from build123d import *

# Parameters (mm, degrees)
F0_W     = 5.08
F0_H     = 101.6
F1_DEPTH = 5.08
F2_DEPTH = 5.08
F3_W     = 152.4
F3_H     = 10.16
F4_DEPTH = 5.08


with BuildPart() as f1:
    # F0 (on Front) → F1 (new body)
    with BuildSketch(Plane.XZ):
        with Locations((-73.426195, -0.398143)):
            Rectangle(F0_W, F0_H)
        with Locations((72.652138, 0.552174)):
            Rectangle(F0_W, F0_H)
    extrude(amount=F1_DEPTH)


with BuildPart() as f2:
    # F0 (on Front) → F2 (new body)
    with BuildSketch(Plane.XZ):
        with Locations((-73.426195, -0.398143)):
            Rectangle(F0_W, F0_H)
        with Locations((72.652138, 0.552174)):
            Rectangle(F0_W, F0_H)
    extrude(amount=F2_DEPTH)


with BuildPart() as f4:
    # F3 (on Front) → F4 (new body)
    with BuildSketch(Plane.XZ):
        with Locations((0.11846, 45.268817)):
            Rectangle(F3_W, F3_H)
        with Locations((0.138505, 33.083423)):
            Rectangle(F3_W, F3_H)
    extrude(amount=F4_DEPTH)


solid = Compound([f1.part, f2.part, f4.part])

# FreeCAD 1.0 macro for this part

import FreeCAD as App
import Part
import Sketcher

V = App.Vector
Q = App.Units.Quantity

doc = App.newDocument("Part")
body = doc.addObject("PartDesign::Body", "Body")
body.AllowCompound = True

# Sketch on XZ plane
sketch1 = doc.addObject("Sketcher::SketchObject", "Sketch")
body.addObject(sketch1)
sketch1.AttachmentSupport = (doc.XZ_Plane, [""])
sketch1.MapMode = "FlatFace"
sketch1.addGeometry(Part.LineSegment(V(-76, 50, 0), V(-76, -51, 0)), False)
sketch1.addGeometry(Part.LineSegment(V(-76, -51, 0), V(-71, -51, 0)), False)
sketch1.addGeometry(Part.LineSegment(V(-71, -51, 0), V(-71, 50, 0)), False)
sketch1.addGeometry(Part.LineSegment(V(-71, 50, 0), V(-76, 50, 0)), False)
sketch1.addGeometry(Part.LineSegment(V(70, 51, 0), V(70, -50, 0)), False)
sketch1.addGeometry(Part.LineSegment(V(70, -50, 0), V(75, -50, 0)), False)
sketch1.addGeometry(Part.LineSegment(V(75, -50, 0), V(75, 51, 0)), False)
sketch1.addGeometry(Part.LineSegment(V(75, 51, 0), V(70, 51, 0)), False)
sketch1.addConstraint(Sketcher.Constraint("Coincident", 0, 2, 1, 1))
sketch1.addConstraint(Sketcher.Constraint("Coincident", 1, 2, 2, 1))
sketch1.addConstraint(Sketcher.Constraint("Coincident", 2, 2, 3, 1))
sketch1.addConstraint(Sketcher.Constraint("Coincident", 3, 2, 0, 1))
sketch1.addConstraint(Sketcher.Constraint("Coincident", 4, 2, 5, 1))
sketch1.addConstraint(Sketcher.Constraint("Coincident", 5, 2, 6, 1))
sketch1.addConstraint(Sketcher.Constraint("Coincident", 6, 2, 7, 1))
sketch1.addConstraint(Sketcher.Constraint("Coincident", 7, 2, 4, 1))
sketch1.addConstraint(Sketcher.Constraint("Vertical", 0))
sketch1.addConstraint(Sketcher.Constraint("Horizontal", 1))
sketch1.addConstraint(Sketcher.Constraint("Vertical", 2))
sketch1.addConstraint(Sketcher.Constraint("Horizontal", 3))
sketch1.addConstraint(Sketcher.Constraint("Vertical", 4))
sketch1.addConstraint(Sketcher.Constraint("Horizontal", 5))
sketch1.addConstraint(Sketcher.Constraint("Vertical", 6))
sketch1.addConstraint(Sketcher.Constraint("Horizontal", 7))
sketch1.addConstraint(Sketcher.Constraint("Equal", 3, 5))
sketch1.addConstraint(Sketcher.Constraint("Equal", 2, 4))
sketch1.addConstraint(Sketcher.Constraint("DistanceY", 0, 2, 0, 1, Q("4 in")))
sketch1.addConstraint(Sketcher.Constraint("DistanceX", 1, 1, 1, 2, Q("0.2 in")))
sketch1.addConstraint(Sketcher.Constraint("DistanceX", -1, 1, 4, 2, Q("70.112138 mm")))
sketch1.addConstraint(Sketcher.Constraint("DistanceX", 0, 2, -1, 1, Q("75.966195 mm")))
sketch1.addConstraint(Sketcher.Constraint("DistanceY", 0, 2, -1, 1, Q("51.198143 mm")))
sketch1.addConstraint(Sketcher.Constraint("DistanceY", 4, 2, -1, 1, Q("50.247826 mm")))
pad1 = doc.addObject("PartDesign::Pad", "Pad")
body.addObject(pad1)
pad1.Profile = sketch1
pad1.Length = Q("0.2 in")
body2 = doc.addObject("PartDesign::Body", "Body001")
body2.AllowCompound = True

# Sketch on XZ plane
sketch2 = doc.addObject("Sketcher::SketchObject", "Sketch001")
body2.addObject(sketch2)
sketch2.AttachmentSupport = (doc.getObject("XZ_Plane001"), [""])
sketch2.MapMode = "FlatFace"
sketch2.addGeometry(Part.LineSegment(V(-76, 50, 0), V(-76, -51, 0)), False)
sketch2.addGeometry(Part.LineSegment(V(-76, -51, 0), V(-71, -51, 0)), False)
sketch2.addGeometry(Part.LineSegment(V(-71, -51, 0), V(-71, 50, 0)), False)
sketch2.addGeometry(Part.LineSegment(V(-71, 50, 0), V(-76, 50, 0)), False)
sketch2.addGeometry(Part.LineSegment(V(70, 51, 0), V(70, -50, 0)), False)
sketch2.addGeometry(Part.LineSegment(V(70, -50, 0), V(75, -50, 0)), False)
sketch2.addGeometry(Part.LineSegment(V(75, -50, 0), V(75, 51, 0)), False)
sketch2.addGeometry(Part.LineSegment(V(75, 51, 0), V(70, 51, 0)), False)
sketch2.addConstraint(Sketcher.Constraint("Coincident", 0, 2, 1, 1))
sketch2.addConstraint(Sketcher.Constraint("Coincident", 1, 2, 2, 1))
sketch2.addConstraint(Sketcher.Constraint("Coincident", 2, 2, 3, 1))
sketch2.addConstraint(Sketcher.Constraint("Coincident", 3, 2, 0, 1))
sketch2.addConstraint(Sketcher.Constraint("Coincident", 4, 2, 5, 1))
sketch2.addConstraint(Sketcher.Constraint("Coincident", 5, 2, 6, 1))
sketch2.addConstraint(Sketcher.Constraint("Coincident", 6, 2, 7, 1))
sketch2.addConstraint(Sketcher.Constraint("Coincident", 7, 2, 4, 1))
sketch2.addConstraint(Sketcher.Constraint("Vertical", 0))
sketch2.addConstraint(Sketcher.Constraint("Horizontal", 1))
sketch2.addConstraint(Sketcher.Constraint("Vertical", 2))
sketch2.addConstraint(Sketcher.Constraint("Horizontal", 3))
sketch2.addConstraint(Sketcher.Constraint("Vertical", 4))
sketch2.addConstraint(Sketcher.Constraint("Horizontal", 5))
sketch2.addConstraint(Sketcher.Constraint("Vertical", 6))
sketch2.addConstraint(Sketcher.Constraint("Horizontal", 7))
sketch2.addConstraint(Sketcher.Constraint("Equal", 3, 5))
sketch2.addConstraint(Sketcher.Constraint("Equal", 2, 4))
sketch2.addConstraint(Sketcher.Constraint("DistanceY", 0, 2, 0, 1, Q("4 in")))
sketch2.addConstraint(Sketcher.Constraint("DistanceX", 1, 1, 1, 2, Q("0.2 in")))
sketch2.addConstraint(Sketcher.Constraint("DistanceX", -1, 1, 4, 2, Q("70.112138 mm")))
sketch2.addConstraint(Sketcher.Constraint("DistanceX", 0, 2, -1, 1, Q("75.966195 mm")))
sketch2.addConstraint(Sketcher.Constraint("DistanceY", 0, 2, -1, 1, Q("51.198143 mm")))
sketch2.addConstraint(Sketcher.Constraint("DistanceY", 4, 2, -1, 1, Q("50.247826 mm")))
pad2 = doc.addObject("PartDesign::Pad", "Pad001")
body2.addObject(pad2)
pad2.Profile = sketch2
pad2.Length = Q("0.2 in")
body3 = doc.addObject("PartDesign::Body", "Body002")
body3.AllowCompound = True

# Sketch on XZ plane
sketch3 = doc.addObject("Sketcher::SketchObject", "Sketch002")
body3.addObject(sketch3)
sketch3.AttachmentSupport = (doc.getObject("XZ_Plane002"), [""])
sketch3.MapMode = "FlatFace"
sketch3.addGeometry(Part.LineSegment(V(-76, 50, 0), V(-76, 40, 0)), False)
sketch3.addGeometry(Part.LineSegment(V(-76, 40, 0), V(76, 40, 0)), False)
sketch3.addGeometry(Part.LineSegment(V(76, 40, 0), V(76, 50, 0)), False)
sketch3.addGeometry(Part.LineSegment(V(76, 50, 0), V(-76, 50, 0)), False)
sketch3.addGeometry(Part.LineSegment(V(-76, 38, 0), V(-76, 28, 0)), False)
sketch3.addGeometry(Part.LineSegment(V(-76, 28, 0), V(76, 28, 0)), False)
sketch3.addGeometry(Part.LineSegment(V(76, 28, 0), V(76, 38, 0)), False)
sketch3.addGeometry(Part.LineSegment(V(76, 38, 0), V(-76, 38, 0)), False)
sketch3.addConstraint(Sketcher.Constraint("Coincident", 0, 2, 1, 1))
sketch3.addConstraint(Sketcher.Constraint("Coincident", 1, 2, 2, 1))
sketch3.addConstraint(Sketcher.Constraint("Coincident", 2, 2, 3, 1))
sketch3.addConstraint(Sketcher.Constraint("Coincident", 3, 2, 0, 1))
sketch3.addConstraint(Sketcher.Constraint("Coincident", 4, 2, 5, 1))
sketch3.addConstraint(Sketcher.Constraint("Coincident", 5, 2, 6, 1))
sketch3.addConstraint(Sketcher.Constraint("Coincident", 6, 2, 7, 1))
sketch3.addConstraint(Sketcher.Constraint("Coincident", 7, 2, 4, 1))
sketch3.addConstraint(Sketcher.Constraint("Vertical", 0))
sketch3.addConstraint(Sketcher.Constraint("Horizontal", 1))
sketch3.addConstraint(Sketcher.Constraint("Vertical", 2))
sketch3.addConstraint(Sketcher.Constraint("Horizontal", 3))
sketch3.addConstraint(Sketcher.Constraint("Vertical", 4))
sketch3.addConstraint(Sketcher.Constraint("Horizontal", 5))
sketch3.addConstraint(Sketcher.Constraint("Vertical", 6))
sketch3.addConstraint(Sketcher.Constraint("Horizontal", 7))
sketch3.addConstraint(Sketcher.Constraint("Equal", 3, 5))
sketch3.addConstraint(Sketcher.Constraint("Equal", 2, 4))
sketch3.addConstraint(Sketcher.Constraint("DistanceX", 1, 1, 1, 2, Q("6 in")))
sketch3.addConstraint(Sketcher.Constraint("DistanceY", 0, 2, 0, 1, Q("0.4 in")))
sketch3.addConstraint(Sketcher.Constraint("DistanceX", 0, 2, -1, 1, Q("76.08154 mm")))
sketch3.addConstraint(Sketcher.Constraint("DistanceY", -1, 1, 0, 2, Q("40.188817 mm")))
sketch3.addConstraint(Sketcher.Constraint("DistanceX", 4, 2, -1, 1, Q("76.061495 mm")))
sketch3.addConstraint(Sketcher.Constraint("DistanceY", -1, 1, 4, 2, Q("28.003423 mm")))
pad3 = doc.addObject("PartDesign::Pad", "Pad002")
body3.addObject(pad3)
pad3.Profile = sketch3
pad3.Length = Q("0.2 in")

doc.recompute()
